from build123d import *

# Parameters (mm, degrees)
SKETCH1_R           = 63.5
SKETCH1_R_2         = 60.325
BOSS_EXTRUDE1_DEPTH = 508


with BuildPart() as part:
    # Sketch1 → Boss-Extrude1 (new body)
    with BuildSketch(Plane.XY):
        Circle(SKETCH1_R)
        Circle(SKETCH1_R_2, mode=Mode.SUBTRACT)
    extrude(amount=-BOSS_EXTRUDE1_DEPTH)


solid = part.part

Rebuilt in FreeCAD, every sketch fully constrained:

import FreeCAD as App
import Part
import Sketcher
from FreeCAD import Vector
Q = App.Units.Quantity

doc = App.newDocument("Part")
params = doc.addObject("Spreadsheet::Sheet", "Params")
for row, (alias, value) in enumerate([
    ("sketch1_diameter", "5 in"),
    ("sketch1_diameter2", "4.75 in"),
    ("pad1_length", "20 in"),
], start=1):
    params.set(f"A{row}", alias)
    params.set(f"B{row}", "=" + value)
    params.setAlias(f"B{row}", alias)

body = doc.addObject("PartDesign::Body", "Body")

sketch1 = body.newObject("Sketcher::SketchObject", "Sketch")
sketch1.AttachmentSupport = (doc.getObject("XY_Plane"), [""])
sketch1.MapMode = "FlatFace"
sketch1.addGeometry(Part.Circle(Vector(0, 0, 0), Vector(0, 0, 1), 63.5), False)
sketch1.addGeometry(Part.Circle(Vector(0, 0, 0), Vector(0, 0, 1), 60.325), False)
sketch1.addConstraint(Sketcher.Constraint("Coincident", 0, 3, -1, 1))
sketch1.addConstraint(Sketcher.Constraint("Coincident", 1, 3, -1, 1))
sketch1.addConstraint(Sketcher.Constraint("Diameter", 0, Q("5 in")))
sketch1.addConstraint(Sketcher.Constraint("Diameter", 1, Q("4.75 in")))
sketch1.setExpression("Constraints[2]", "Params.sketch1_diameter")
sketch1.setExpression("Constraints[3]", "Params.sketch1_diameter2")
pad1 = body.newObject("PartDesign::Pad", "Pad")
pad1.Profile = sketch1
pad1.setExpression("Length", "Params.pad1_length")
pad1.Reversed = True

doc.recompute()
